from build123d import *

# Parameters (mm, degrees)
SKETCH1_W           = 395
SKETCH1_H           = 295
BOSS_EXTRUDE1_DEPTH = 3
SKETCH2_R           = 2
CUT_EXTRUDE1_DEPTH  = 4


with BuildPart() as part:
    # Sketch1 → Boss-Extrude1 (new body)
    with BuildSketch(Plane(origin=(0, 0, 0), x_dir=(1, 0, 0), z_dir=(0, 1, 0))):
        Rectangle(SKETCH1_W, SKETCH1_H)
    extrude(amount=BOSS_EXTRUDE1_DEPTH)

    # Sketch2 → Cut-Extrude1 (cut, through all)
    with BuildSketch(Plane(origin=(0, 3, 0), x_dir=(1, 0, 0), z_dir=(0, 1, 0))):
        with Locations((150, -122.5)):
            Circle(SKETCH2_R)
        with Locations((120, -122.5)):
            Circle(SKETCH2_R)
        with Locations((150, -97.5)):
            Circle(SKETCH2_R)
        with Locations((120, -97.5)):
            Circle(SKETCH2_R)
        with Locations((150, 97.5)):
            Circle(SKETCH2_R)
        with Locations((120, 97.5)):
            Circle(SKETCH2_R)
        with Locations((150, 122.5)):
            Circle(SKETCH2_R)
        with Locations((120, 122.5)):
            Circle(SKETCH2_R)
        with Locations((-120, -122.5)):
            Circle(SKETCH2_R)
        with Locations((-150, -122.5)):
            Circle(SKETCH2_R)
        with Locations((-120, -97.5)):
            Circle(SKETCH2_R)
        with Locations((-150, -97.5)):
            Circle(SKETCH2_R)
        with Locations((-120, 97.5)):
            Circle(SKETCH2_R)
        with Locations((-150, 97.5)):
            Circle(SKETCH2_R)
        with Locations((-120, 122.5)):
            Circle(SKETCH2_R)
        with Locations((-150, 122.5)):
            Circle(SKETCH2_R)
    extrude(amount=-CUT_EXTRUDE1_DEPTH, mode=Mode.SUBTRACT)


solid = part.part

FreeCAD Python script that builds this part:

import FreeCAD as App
import Part
import Sketcher

V = App.Vector
Q = App.Units.Quantity

doc = App.newDocument("Part")
body = doc.addObject("PartDesign::Body", "Body")

sketch1 = body.newObject("Sketcher::SketchObject", "Sketch")
sketch1.AttachmentSupport = (doc.getObject("XZ_Plane"), [""])
sketch1.MapMode = "FlatFace"
sketch1.addGeometry([
    Part.LineSegment(V(-197.5, -147.5, 0), V(-197.5, 147.5, 0)),
    Part.LineSegment(V(-197.5, 147.5, 0), V(197.5, 147.5, 0)),
    Part.LineSegment(V(197.5, 147.5, 0), V(197.5, -147.5, 0)),
    Part.LineSegment(V(197.5, -147.5, 0), V(-197.5, -147.5, 0)),
], False)
sketch1.addConstraint([
    Sketcher.Constraint("Coincident", 0, 2, 1, 1),
    Sketcher.Constraint("Coincident", 1, 2, 2, 1),
    Sketcher.Constraint("Coincident", 2, 2, 3, 1),
    Sketcher.Constraint("Coincident", 3, 2, 0, 1),
    Sketcher.Constraint("Vertical", 0),
    Sketcher.Constraint("Horizontal", 1),
    Sketcher.Constraint("Vertical", 2),
    Sketcher.Constraint("Horizontal", 3),
    Sketcher.Constraint("Symmetric", 0, 2, 2, 2, -1, 1),
    Sketcher.Constraint("DistanceX", 1, 1, 1, 2, Q("395 mm")),
    Sketcher.Constraint("DistanceY", 0, 1, 0, 2, Q("295 mm")),
])
pad1 = body.newObject("PartDesign::Pad", "Pad")
pad1.Profile = sketch1
pad1.Length = 3
pad1.Reversed = True

sketch2 = body.newObject("Sketcher::SketchObject", "Sketch001")
sketch2.AttachmentSupport = (doc.getObject("XZ_Plane"), [""])
sketch2.MapMode = "FlatFace"
sketch2.AttachmentOffset = App.Placement(V(0, 0, -3), App.Rotation())
sketch2.addGeometry([
    Part.Circle(V(150, 122.5, 0), V(0, 0, 1), 2),
    Part.Circle(V(120, 122.5, 0), V(0, 0, 1), 2),
    Part.Circle(V(150, 97.5, 0), V(0, 0, 1), 2),
    Part.Circle(V(120, 97.5, 0), V(0, 0, 1), 2),
    Part.Circle(V(150, -97.5, 0), V(0, 0, 1), 2),
    Part.Circle(V(120, -97.5, 0), V(0, 0, 1), 2),
    Part.Circle(V(150, -122.5, 0), V(0, 0, 1), 2),
    Part.Circle(V(120, -122.5, 0), V(0, 0, 1), 2),
    Part.Circle(V(-120, 122.5, 0), V(0, 0, 1), 2),
    Part.Circle(V(-150, 122.5, 0), V(0, 0, 1), 2),
    Part.Circle(V(-120, 97.5, 0), V(0, 0, 1), 2),
    Part.Circle(V(-150, 97.5, 0), V(0, 0, 1), 2),
    Part.Circle(V(-120, -97.5, 0), V(0, 0, 1), 2),
    Part.Circle(V(-150, -97.5, 0), V(0, 0, 1), 2),
    Part.Circle(V(-120, -122.5, 0), V(0, 0, 1), 2),
    Part.Circle(V(-150, -122.5, 0), V(0, 0, 1), 2),
], False)
sketch2.addConstraint([
    Sketcher.Constraint("Equal", 0, 1),
    Sketcher.Constraint("Equal", 1, 2),
    Sketcher.Constraint("Equal", 2, 3),
    Sketcher.Constraint("Equal", 3, 4),
    Sketcher.Constraint("Equal", 4, 5),
    Sketcher.Constraint("Equal", 5, 6),
    Sketcher.Constraint("Equal", 6, 7),
    Sketcher.Constraint("Equal", 7, 8),
    Sketcher.Constraint("Equal", 8, 9),
    Sketcher.Constraint("Equal", 9, 10),
    Sketcher.Constraint("Equal", 10, 11),
    Sketcher.Constraint("Equal", 11, 12),
    Sketcher.Constraint("Equal", 12, 13),
    Sketcher.Constraint("Equal", 13, 14),
    Sketcher.Constraint("Equal", 14, 15),
    Sketcher.Constraint("Symmetric", 7, 3, 8, 3, -1, 1),
    Sketcher.Constraint("Symmetric", 6, 3, 9, 3, -1, 1),
    Sketcher.Constraint("Symmetric", 5, 3, 10, 3, -1, 1),
    Sketcher.Constraint("Symmetric", 4, 3, 11, 3, -1, 1),
    Sketcher.Constraint("Symmetric", 3, 3, 12, 3, -1, 1),
    Sketcher.Constraint("Symmetric", 2, 3, 13, 3, -1, 1),
    Sketcher.Constraint("Symmetric", 1, 3, 14, 3, -1, 1),
    Sketcher.Constraint("Symmetric", 0, 3, 15, 3, -1, 1),
    Sketcher.Constraint("Symmetric", 1, 3, 8, 3, -2),
    Sketcher.Constraint("Symmetric", 0, 3, 9, 3, -2),
    Sketcher.Constraint("Symmetric", 3, 3, 10, 3, -2),
    Sketcher.Constraint("Symmetric", 2, 3, 11, 3, -2),
    Sketcher.Constraint("Horizontal", 0, 3, 1, 3),
    Sketcher.Constraint("Horizontal", 2, 3, 3, 3),
    Sketcher.Constraint("Vertical", 0, 3, 2, 3),
    Sketcher.Constraint("Vertical", 1, 3, 3, 3),
    Sketcher.Constraint("Diameter", 0, Q("4 mm")),
    Sketcher.Constraint("DistanceX", -1, 1, 0, 3, Q("150 mm")),
    Sketcher.Constraint("DistanceX", -1, 1, 1, 3, Q("120 mm")),
    Sketcher.Constraint("DistanceY", 2, 3, 0, 3, Q("25 mm")),
    Sketcher.Constraint("DistanceY", 4, 3, 2, 3, Q("195 mm")),
])
pocket1 = body.newObject("PartDesign::Pocket", "Pocket")
pocket1.Profile = sketch2
pocket1.Type = "ThroughAll"
pocket1.Reversed = True

doc.recompute()
